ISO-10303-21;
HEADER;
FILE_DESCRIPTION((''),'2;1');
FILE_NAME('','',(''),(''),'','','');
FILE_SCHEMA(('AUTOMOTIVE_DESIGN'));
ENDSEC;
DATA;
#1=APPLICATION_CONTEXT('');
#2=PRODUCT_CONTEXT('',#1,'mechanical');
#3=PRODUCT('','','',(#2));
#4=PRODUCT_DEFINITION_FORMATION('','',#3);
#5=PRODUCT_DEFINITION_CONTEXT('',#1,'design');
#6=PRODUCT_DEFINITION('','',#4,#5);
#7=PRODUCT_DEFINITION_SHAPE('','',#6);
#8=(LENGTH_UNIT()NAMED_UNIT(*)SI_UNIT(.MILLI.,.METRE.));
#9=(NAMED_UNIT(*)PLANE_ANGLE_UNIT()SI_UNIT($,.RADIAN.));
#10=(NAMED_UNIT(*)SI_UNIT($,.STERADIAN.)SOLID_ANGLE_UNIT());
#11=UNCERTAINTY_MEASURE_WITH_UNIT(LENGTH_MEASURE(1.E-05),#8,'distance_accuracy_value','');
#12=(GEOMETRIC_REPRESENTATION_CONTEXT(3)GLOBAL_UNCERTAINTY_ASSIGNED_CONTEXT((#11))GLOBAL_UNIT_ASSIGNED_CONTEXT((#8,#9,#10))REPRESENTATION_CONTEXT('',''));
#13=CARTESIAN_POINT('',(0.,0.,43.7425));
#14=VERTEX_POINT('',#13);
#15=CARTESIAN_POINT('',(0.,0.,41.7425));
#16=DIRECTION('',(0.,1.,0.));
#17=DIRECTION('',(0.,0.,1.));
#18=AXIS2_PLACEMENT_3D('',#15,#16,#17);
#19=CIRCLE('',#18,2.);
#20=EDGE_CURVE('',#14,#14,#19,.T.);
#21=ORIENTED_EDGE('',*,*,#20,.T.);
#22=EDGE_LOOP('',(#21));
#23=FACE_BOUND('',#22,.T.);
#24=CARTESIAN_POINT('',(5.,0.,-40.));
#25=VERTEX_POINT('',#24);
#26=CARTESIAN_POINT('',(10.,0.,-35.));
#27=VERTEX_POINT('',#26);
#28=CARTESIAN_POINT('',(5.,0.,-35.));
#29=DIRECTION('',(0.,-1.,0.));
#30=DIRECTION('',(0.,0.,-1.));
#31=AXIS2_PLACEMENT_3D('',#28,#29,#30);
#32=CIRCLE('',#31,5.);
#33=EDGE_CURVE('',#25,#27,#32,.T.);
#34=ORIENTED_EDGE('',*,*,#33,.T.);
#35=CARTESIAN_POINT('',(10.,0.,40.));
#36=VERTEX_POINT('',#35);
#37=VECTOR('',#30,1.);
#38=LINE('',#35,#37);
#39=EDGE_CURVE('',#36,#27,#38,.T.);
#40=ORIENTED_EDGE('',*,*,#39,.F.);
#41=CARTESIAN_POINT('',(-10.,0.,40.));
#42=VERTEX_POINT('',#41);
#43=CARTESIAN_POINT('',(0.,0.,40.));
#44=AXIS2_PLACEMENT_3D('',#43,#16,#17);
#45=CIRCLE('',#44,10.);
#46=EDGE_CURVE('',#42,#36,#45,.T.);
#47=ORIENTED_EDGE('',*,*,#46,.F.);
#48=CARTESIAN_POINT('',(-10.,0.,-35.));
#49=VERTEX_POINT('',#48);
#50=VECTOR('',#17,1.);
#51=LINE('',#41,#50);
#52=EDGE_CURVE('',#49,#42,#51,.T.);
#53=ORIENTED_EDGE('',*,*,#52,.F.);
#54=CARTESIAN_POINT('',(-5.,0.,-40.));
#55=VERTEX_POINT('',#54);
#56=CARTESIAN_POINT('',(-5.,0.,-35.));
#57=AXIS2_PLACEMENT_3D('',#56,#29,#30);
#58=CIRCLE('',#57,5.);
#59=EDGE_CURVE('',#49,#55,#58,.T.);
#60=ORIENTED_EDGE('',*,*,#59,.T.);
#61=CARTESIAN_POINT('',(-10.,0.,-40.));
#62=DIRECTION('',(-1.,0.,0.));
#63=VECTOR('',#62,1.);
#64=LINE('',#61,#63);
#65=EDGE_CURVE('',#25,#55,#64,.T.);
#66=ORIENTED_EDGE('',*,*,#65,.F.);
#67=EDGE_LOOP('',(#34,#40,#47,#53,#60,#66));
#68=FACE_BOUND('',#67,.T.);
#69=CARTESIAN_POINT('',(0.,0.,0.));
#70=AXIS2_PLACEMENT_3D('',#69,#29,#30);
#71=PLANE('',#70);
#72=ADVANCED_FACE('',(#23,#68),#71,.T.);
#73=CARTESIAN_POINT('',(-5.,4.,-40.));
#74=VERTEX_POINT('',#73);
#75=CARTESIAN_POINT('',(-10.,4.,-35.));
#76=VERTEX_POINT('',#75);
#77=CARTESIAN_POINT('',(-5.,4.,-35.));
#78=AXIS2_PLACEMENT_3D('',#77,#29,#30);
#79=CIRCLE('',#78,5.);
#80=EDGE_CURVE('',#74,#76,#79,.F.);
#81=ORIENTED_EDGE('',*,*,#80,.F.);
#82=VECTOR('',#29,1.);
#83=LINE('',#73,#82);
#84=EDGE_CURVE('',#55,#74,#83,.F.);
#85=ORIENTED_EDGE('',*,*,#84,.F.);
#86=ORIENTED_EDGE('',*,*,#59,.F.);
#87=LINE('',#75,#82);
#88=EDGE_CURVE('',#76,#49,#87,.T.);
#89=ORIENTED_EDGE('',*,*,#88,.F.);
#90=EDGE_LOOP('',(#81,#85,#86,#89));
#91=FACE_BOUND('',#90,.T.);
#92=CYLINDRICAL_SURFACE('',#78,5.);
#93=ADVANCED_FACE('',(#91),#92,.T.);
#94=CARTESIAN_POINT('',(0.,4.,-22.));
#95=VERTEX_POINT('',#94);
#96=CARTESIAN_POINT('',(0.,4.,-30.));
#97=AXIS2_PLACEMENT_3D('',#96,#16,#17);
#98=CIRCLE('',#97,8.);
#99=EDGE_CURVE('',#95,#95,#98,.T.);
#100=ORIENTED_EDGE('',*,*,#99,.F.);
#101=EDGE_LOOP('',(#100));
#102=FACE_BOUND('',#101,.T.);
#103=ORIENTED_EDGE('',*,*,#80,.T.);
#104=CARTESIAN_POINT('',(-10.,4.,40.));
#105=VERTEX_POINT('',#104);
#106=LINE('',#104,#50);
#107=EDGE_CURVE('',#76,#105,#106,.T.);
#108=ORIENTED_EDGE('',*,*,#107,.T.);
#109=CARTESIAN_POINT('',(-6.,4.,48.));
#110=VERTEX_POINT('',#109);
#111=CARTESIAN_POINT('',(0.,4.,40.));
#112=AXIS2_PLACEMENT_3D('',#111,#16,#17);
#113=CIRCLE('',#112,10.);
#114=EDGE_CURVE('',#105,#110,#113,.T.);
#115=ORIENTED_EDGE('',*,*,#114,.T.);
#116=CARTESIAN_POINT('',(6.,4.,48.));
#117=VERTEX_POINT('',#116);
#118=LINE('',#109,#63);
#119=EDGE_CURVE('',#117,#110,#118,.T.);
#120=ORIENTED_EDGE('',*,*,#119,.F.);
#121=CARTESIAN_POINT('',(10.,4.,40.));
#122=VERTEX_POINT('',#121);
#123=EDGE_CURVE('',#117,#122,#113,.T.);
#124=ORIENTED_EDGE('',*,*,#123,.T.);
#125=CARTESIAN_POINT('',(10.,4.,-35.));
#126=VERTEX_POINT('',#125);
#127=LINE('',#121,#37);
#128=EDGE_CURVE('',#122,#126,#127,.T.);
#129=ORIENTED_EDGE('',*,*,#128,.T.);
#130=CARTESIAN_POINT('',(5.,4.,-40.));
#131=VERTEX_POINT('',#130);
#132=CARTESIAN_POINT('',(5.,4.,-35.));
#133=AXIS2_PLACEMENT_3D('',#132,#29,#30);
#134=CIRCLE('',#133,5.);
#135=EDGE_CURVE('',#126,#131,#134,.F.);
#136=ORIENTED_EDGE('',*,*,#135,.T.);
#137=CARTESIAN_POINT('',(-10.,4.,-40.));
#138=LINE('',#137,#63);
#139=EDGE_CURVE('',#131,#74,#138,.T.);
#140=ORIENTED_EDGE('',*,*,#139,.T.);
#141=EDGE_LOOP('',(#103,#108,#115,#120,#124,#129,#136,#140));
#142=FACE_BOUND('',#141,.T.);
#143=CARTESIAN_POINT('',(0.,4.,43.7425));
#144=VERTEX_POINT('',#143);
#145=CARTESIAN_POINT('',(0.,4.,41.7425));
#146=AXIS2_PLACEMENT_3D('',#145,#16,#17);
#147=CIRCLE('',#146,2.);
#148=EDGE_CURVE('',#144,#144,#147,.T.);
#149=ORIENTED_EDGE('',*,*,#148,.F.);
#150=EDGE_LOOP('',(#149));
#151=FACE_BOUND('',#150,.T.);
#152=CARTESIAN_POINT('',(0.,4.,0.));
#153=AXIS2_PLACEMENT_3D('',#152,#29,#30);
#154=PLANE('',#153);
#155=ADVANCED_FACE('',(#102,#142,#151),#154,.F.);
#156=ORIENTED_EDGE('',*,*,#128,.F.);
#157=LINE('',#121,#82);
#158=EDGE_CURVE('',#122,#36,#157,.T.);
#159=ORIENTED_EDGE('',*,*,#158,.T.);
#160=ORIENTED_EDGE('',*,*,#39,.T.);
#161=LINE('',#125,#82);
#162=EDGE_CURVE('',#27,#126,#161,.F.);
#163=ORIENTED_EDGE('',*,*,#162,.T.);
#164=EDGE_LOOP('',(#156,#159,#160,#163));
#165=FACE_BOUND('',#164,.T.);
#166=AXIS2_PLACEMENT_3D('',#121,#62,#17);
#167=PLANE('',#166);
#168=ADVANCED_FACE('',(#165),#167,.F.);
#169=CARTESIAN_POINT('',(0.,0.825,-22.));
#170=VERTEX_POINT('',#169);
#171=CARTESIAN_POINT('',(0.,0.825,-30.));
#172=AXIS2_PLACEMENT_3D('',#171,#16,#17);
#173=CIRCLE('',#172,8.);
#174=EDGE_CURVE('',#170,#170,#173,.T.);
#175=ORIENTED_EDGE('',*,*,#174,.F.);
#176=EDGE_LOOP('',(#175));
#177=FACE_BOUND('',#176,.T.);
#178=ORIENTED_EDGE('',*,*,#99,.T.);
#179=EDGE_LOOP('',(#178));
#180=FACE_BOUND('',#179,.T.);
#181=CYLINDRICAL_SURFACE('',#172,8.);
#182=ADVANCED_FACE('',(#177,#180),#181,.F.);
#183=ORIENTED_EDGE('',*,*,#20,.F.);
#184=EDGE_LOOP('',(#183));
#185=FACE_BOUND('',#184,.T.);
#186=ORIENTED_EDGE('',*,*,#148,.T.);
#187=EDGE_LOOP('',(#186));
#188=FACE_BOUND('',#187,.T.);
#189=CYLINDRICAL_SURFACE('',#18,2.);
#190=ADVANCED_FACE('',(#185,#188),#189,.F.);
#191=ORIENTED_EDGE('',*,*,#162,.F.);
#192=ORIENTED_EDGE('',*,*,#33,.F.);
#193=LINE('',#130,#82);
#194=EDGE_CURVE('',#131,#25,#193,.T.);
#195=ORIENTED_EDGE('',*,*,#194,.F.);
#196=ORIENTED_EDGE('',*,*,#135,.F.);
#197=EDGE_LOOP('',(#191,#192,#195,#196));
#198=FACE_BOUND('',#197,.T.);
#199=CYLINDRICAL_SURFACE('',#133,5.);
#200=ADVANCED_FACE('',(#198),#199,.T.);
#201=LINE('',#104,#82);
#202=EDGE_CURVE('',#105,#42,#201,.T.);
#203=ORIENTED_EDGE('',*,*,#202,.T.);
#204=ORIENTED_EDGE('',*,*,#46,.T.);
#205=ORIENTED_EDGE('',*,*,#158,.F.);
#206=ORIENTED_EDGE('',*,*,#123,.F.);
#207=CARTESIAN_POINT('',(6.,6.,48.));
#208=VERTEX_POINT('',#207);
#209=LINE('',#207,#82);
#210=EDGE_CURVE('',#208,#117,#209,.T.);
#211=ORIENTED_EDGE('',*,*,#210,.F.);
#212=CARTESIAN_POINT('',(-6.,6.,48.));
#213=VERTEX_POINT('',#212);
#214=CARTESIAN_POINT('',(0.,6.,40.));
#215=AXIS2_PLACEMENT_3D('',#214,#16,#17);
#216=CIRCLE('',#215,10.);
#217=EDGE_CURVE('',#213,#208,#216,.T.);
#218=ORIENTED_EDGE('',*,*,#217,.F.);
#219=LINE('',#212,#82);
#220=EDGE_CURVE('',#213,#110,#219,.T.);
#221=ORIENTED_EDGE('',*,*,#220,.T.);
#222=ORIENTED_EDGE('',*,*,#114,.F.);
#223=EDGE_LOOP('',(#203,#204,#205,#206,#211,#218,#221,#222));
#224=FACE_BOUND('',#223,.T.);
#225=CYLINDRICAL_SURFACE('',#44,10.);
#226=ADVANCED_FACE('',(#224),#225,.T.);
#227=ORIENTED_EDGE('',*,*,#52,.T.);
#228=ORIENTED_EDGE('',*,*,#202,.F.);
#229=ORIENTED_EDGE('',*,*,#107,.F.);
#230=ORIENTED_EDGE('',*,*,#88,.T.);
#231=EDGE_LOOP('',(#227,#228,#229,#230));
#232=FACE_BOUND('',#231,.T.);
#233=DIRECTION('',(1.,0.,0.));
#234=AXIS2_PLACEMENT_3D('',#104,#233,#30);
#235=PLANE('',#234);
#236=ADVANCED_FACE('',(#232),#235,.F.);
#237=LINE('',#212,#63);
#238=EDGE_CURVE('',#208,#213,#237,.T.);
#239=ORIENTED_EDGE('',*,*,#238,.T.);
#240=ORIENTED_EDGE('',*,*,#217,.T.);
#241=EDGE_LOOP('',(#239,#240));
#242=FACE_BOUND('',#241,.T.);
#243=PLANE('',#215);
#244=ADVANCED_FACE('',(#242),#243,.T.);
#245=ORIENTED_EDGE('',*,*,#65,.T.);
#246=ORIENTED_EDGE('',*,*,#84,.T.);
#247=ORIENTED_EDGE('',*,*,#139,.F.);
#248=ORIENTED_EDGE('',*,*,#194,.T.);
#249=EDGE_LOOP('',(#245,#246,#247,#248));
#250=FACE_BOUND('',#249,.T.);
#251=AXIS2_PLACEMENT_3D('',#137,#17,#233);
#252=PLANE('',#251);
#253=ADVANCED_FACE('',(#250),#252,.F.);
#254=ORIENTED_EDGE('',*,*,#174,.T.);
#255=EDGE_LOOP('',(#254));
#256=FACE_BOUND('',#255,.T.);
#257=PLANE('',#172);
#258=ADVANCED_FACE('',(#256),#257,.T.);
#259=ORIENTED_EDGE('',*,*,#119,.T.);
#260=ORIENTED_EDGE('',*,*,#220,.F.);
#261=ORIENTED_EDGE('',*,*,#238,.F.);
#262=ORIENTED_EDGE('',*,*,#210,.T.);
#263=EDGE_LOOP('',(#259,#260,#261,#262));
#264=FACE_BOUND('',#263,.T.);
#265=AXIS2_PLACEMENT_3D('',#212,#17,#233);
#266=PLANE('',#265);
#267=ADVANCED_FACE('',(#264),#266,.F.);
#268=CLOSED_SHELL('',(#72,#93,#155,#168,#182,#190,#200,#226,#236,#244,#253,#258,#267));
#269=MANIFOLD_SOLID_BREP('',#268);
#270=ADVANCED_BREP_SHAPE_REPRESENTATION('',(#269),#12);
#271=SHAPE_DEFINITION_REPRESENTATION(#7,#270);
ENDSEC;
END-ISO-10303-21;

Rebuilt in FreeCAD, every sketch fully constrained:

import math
import FreeCAD as App
import Part
import Sketcher

V = App.Vector
Q = App.Units.Quantity


def edges_at(feature, points):
    """Names of the edges that pass closest to the given points."""
    edges = feature.Shape.Edges
    near = lambda p: min(range(len(edges)), key=lambda i: edges[i].distToShape(Part.Vertex(*p))[0])
    return sorted({f"Edge{near(p) + 1}" for p in points})

doc = App.newDocument("Part")
body = doc.addObject("PartDesign::Body", "Body")

sketch1 = body.newObject("Sketcher::SketchObject", "Sketch")
sketch1.AttachmentSupport = (doc.getObject("XZ_Plane"), [""])
sketch1.MapMode = "FlatFace"
sketch1.addGeometry(Part.LineSegment(V(-10, -40, 0), V(-10, 40, 0)), False)
sketch1.addGeometry(Part.LineSegment(V(-10, 40, 0), V(10, 40, 0)), False)
sketch1.addGeometry(Part.LineSegment(V(10, 40, 0), V(10, -40, 0)), False)
sketch1.addGeometry(Part.LineSegment(V(10, -40, 0), V(-10, -40, 0)), False)
sketch1.addConstraint(Sketcher.Constraint("Coincident", 0, 2, 1, 1))
sketch1.addConstraint(Sketcher.Constraint("Coincident", 1, 2, 2, 1))
sketch1.addConstraint(Sketcher.Constraint("Coincident", 2, 2, 3, 1))
sketch1.addConstraint(Sketcher.Constraint("Coincident", 3, 2, 0, 1))
sketch1.addConstraint(Sketcher.Constraint("Vertical", 0))
sketch1.addConstraint(Sketcher.Constraint("Horizontal", 1))
sketch1.addConstraint(Sketcher.Constraint("Vertical", 2))
sketch1.addConstraint(Sketcher.Constraint("Horizontal", 3))
sketch1.addConstraint(Sketcher.Constraint("Symmetric", 0, 2, 2, 2, -1, 1))
sketch1.addConstraint(Sketcher.Constraint("DistanceX", 1, 1, 1, 2, Q("20 mm")))
sketch1.addConstraint(Sketcher.Constraint("DistanceY", 0, 1, 0, 2, Q("80 mm")))
pad1 = body.newObject("PartDesign::Pad", "Pad")
pad1.Profile = sketch1
pad1.Length = 4
pad1.Reversed = True

sketch2 = body.newObject("Sketcher::SketchObject", "Sketch001")
sketch2.AttachmentSupport = (doc.getObject("XZ_Plane"), [""])
sketch2.MapMode = "FlatFace"
sketch2.AttachmentOffset = App.Placement(V(0, 0, -4), App.Rotation())
sketch2.addGeometry(Part.Circle(V(0, 40, 0), V(0, 0, 1), 10), False)
sketch2.addConstraint(Sketcher.Constraint("PointOnObject", 0, 3, -2))
sketch2.addConstraint(Sketcher.Constraint("Diameter", 0, Q("20 mm")))
sketch2.addConstraint(Sketcher.Constraint("DistanceY", -1, 1, 0, 3, Q("40 mm")))
pad2 = body.newObject("PartDesign::Pad", "Pad001")
pad2.Profile = sketch2
pad2.Length = 4

sketch3 = body.newObject("Sketcher::SketchObject", "Sketch002")
sketch3.AttachmentSupport = (doc.getObject("XZ_Plane"), [""])
sketch3.MapMode = "FlatFace"
sketch3.AttachmentOffset = App.Placement(V(0, 0, -4), App.Rotation())
sketch3.addGeometry(Part.Circle(V(0, -30, 0), V(0, 0, 1), 8), False)
sketch3.addConstraint(Sketcher.Constraint("PointOnObject", 0, 3, -2))
sketch3.addConstraint(Sketcher.Constraint("Diameter", 0, Q("16 mm")))
sketch3.addConstraint(Sketcher.Constraint("DistanceY", 0, 3, -1, 1, Q("30 mm")))
pocket1 = body.newObject("PartDesign::Pocket", "Pocket")
pocket1.Profile = sketch3
pocket1.Length = 3.175
pocket1.Reversed = True

sketch4 = body.newObject("Sketcher::SketchObject", "Sketch003")
sketch4.AttachmentSupport = (doc.getObject("XZ_Plane"), [""])
sketch4.MapMode = "FlatFace"
sketch4.AttachmentOffset = App.Placement(V(0, 0, -4), App.Rotation())
sketch4.addGeometry(Part.Circle(V(0, 41.7, 0), V(0, 0, 1), 2), False)
sketch4.addConstraint(Sketcher.Constraint("PointOnObject", 0, 3, -2))
sketch4.addConstraint(Sketcher.Constraint("Diameter", 0, Q("4 mm")))
sketch4.addConstraint(Sketcher.Constraint("DistanceY", -1, 1, 0, 3, Q("41.7425 mm")))
pocket2 = body.newObject("PartDesign::Pocket", "Pocket001")
pocket2.Profile = sketch4
pocket2.Type = "ThroughAll"
pocket2.Reversed = True

sketch5 = body.newObject("Sketcher::SketchObject", "Sketch004")
sketch5.AttachmentSupport = (doc.getObject("XZ_Plane"), [""])
sketch5.MapMode = "FlatFace"
sketch5.AttachmentOffset = App.Placement(V(0, 0, -6), App.Rotation())
sketch5.addGeometry(Part.LineSegment(V(6, 48, 0), V(-6, 48, 0)), False)
sketch5.addGeometry(Part.ArcOfCircle(Part.Circle(V(0, 40, 0), V(0, 0, 1), 10), math.radians(53), math.radians(127)), False)
sketch5.addConstraint(Sketcher.Constraint("Coincident", 0, 1, 1, 1))
sketch5.addConstraint(Sketcher.Constraint("Coincident", 1, 2, 0, 2))
sketch5.addConstraint(Sketcher.Constraint("Horizontal", 0))
sketch5.addConstraint(Sketcher.Constraint("PointOnObject", 1, 3, -2))
sketch5.addConstraint(Sketcher.Constraint("Radius", 1, Q("10 mm")))
sketch5.addConstraint(Sketcher.Constraint("DistanceX", 0, 2, 0, 1, Q("12 mm")))
sketch5.addConstraint(Sketcher.Constraint("DistanceY", -1, 1, 1, 3, Q("40 mm")))
pad3 = body.newObject("PartDesign::Pad", "Pad002")
pad3.Profile = sketch5
pad3.Length = 2
doc.recompute()

fillet = body.newObject("PartDesign::Fillet", "Fillet")
fillet.Base = (pad3, edges_at(pad3, [(-10, 2, -40), (10, 2, -40)]))
fillet.Radius = 5

doc.recompute()
